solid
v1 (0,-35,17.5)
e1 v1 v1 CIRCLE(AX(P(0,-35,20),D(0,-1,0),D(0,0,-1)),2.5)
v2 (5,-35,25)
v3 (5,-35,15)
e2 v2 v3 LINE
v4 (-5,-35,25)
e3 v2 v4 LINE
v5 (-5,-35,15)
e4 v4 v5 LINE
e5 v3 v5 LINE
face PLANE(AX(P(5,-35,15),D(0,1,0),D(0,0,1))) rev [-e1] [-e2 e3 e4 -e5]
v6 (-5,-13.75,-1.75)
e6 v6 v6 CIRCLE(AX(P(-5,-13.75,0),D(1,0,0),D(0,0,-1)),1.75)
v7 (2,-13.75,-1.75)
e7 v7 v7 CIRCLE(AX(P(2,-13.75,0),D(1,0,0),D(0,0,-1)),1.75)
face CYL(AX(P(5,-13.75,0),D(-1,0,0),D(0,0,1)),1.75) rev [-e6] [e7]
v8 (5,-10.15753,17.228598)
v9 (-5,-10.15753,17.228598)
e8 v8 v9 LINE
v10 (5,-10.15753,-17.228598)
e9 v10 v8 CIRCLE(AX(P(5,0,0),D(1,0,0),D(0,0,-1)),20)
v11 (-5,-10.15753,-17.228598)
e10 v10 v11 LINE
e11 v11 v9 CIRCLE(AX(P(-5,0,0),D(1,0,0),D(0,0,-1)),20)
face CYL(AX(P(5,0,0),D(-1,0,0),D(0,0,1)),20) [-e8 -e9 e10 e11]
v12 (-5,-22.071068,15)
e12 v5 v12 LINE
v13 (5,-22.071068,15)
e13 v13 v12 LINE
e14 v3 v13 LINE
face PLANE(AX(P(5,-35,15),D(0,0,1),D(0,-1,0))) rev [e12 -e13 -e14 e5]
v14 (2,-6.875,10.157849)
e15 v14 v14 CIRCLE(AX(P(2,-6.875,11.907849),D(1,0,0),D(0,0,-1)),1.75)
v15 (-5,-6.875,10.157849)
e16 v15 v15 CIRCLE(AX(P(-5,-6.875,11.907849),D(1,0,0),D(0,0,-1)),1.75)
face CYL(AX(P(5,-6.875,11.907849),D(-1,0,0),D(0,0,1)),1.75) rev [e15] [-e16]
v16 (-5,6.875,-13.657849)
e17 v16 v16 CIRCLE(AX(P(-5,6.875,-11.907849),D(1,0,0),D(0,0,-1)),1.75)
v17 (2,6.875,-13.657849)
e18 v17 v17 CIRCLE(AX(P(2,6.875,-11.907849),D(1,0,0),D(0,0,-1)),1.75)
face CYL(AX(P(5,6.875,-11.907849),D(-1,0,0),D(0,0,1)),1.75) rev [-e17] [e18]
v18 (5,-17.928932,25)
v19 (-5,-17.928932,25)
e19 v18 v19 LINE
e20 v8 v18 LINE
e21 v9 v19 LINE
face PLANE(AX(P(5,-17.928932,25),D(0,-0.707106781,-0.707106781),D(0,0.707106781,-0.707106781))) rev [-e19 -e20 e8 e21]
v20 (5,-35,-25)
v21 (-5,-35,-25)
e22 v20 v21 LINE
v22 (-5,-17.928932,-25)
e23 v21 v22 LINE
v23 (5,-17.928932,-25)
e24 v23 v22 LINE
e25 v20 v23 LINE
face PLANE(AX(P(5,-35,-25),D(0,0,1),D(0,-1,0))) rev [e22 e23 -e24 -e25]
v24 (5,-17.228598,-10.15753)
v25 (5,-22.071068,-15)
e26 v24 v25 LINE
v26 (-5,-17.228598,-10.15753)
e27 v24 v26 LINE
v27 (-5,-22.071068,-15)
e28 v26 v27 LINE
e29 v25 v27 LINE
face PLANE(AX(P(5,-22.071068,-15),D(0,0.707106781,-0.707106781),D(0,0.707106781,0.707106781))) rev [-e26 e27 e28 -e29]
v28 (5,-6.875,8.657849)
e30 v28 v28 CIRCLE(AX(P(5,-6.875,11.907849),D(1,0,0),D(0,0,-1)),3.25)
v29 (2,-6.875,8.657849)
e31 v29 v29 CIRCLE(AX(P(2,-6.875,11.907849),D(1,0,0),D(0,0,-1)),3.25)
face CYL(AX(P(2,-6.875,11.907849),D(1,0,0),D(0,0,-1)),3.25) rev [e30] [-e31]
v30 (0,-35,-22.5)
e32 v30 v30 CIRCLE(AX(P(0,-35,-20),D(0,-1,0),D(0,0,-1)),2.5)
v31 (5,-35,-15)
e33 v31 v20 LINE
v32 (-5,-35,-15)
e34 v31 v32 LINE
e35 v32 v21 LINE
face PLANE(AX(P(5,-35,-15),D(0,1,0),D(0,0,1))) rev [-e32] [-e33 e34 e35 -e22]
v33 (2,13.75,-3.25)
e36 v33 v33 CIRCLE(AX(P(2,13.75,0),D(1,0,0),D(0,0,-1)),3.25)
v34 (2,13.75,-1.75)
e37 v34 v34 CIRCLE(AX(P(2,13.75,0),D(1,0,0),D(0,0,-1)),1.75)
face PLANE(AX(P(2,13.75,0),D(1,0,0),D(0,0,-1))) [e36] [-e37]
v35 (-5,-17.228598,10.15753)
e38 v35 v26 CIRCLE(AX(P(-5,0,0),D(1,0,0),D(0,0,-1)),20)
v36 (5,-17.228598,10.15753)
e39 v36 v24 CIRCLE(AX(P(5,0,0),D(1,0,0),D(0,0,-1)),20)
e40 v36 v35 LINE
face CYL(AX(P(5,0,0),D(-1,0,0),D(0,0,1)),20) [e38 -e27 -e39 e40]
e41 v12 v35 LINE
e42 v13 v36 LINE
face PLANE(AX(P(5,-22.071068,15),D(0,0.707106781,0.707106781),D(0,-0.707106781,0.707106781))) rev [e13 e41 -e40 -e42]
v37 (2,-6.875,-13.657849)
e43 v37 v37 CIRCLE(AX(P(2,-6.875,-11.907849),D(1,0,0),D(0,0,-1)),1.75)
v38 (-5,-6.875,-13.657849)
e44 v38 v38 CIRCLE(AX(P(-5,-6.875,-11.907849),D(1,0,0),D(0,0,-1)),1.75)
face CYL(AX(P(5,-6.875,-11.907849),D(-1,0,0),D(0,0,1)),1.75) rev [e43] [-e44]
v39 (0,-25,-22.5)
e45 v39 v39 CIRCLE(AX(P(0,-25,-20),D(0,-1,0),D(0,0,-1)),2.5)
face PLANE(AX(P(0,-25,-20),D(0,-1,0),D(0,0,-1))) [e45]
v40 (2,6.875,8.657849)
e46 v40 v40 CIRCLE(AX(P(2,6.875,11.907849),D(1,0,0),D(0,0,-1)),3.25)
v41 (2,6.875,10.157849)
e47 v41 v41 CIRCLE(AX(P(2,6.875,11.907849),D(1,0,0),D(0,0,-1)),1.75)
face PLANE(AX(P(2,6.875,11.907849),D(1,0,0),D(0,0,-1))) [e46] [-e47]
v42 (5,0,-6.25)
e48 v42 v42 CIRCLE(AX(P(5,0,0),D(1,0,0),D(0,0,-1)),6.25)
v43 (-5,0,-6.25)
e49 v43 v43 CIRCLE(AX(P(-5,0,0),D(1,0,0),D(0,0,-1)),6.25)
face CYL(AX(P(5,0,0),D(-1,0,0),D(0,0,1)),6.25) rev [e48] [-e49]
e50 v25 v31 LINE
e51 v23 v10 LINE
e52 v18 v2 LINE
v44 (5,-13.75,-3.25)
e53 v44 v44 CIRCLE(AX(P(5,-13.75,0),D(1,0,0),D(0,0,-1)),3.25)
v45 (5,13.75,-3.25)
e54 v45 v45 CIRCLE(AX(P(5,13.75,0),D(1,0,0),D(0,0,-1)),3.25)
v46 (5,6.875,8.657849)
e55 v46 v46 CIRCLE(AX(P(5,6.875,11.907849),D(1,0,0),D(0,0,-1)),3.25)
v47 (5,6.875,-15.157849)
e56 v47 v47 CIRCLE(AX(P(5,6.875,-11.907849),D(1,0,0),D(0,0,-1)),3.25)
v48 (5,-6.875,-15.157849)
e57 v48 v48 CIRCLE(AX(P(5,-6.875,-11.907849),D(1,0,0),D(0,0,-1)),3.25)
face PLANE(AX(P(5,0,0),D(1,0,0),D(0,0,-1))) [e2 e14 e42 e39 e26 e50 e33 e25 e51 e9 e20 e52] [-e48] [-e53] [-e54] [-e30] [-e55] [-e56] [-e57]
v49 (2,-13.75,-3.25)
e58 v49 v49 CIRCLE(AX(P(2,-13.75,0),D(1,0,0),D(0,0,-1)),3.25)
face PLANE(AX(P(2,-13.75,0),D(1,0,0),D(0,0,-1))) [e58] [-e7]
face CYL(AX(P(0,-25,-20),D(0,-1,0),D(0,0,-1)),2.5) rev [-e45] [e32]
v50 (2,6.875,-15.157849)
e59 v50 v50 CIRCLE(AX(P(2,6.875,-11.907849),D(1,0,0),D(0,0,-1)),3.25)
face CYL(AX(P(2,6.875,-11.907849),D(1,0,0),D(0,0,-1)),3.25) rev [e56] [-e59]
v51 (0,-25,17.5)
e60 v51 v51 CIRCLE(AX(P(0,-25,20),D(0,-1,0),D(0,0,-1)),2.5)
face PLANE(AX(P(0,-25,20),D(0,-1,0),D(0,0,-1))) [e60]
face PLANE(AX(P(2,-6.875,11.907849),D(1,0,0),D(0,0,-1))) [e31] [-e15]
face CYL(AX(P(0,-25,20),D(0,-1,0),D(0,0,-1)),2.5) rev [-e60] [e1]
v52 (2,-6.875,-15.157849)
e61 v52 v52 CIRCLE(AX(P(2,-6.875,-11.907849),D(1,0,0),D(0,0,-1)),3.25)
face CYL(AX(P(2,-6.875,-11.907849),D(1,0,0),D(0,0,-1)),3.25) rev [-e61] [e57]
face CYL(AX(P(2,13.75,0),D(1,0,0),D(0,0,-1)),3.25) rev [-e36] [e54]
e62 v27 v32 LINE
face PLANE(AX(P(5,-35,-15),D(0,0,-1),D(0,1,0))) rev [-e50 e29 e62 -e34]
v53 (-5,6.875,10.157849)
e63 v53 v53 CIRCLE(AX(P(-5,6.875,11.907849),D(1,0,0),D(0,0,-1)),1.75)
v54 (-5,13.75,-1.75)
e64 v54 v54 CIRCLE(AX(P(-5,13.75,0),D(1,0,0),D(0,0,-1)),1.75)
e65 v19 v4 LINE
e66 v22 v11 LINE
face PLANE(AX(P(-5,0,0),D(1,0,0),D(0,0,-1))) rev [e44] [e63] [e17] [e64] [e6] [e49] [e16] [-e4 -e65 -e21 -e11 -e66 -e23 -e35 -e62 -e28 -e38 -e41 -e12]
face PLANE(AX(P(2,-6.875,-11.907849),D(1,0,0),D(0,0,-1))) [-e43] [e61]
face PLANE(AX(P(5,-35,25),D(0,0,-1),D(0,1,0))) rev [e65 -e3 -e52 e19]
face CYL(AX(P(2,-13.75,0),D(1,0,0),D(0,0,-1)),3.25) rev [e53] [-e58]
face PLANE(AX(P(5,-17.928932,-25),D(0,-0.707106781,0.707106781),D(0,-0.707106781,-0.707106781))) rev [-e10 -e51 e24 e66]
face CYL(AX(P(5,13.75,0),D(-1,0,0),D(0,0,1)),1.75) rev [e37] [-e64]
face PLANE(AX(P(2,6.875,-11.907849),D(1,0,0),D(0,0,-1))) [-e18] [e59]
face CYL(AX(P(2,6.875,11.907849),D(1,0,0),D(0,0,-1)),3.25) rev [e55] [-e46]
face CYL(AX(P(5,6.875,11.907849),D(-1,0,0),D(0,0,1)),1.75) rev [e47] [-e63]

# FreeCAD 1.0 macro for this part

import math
import FreeCAD as App
import Part
import Sketcher
from FreeCAD import Vector

doc = App.newDocument("Part")
body = doc.addObject("PartDesign::Body", "Body")

sketch1 = doc.addObject("Sketcher::SketchObject", "Sketch")
body.addObject(sketch1)
sketch1.AttachmentSupport = (doc.YZ_Plane, [""])
sketch1.MapMode = "FlatFace"
sketch1.addGeometry(Part.Circle(Vector(0, 0, 0), Vector(0, 0, 1), 20), False)
sketch1.addGeometry(Part.Circle(Vector(-6.9, 11.9, 0), Vector(0, 0, 1), 1.8), False)
sketch1.addGeometry(Part.Circle(Vector(-13.8, 0, 0), Vector(0, 0, 1), 1.8), False)
sketch1.addGeometry(Part.Circle(Vector(-6.9, -11.9, 0), Vector(0, 0, 1), 1.8), False)
sketch1.addGeometry(Part.Circle(Vector(6.9, 11.9, 0), Vector(0, 0, 1), 1.8), False)
sketch1.addGeometry(Part.Circle(Vector(0, 0, 0), Vector(0, 0, 1), 6.2), False)
sketch1.addGeometry(Part.Circle(Vector(6.9, -11.9, 0), Vector(0, 0, 1), 1.8), False)
sketch1.addGeometry(Part.Circle(Vector(13.8, 0, 0), Vector(0, 0, 1), 1.8), False)
sketch1.addConstraint(Sketcher.Constraint("Coincident", 0, 3, -1, 1))
sketch1.addConstraint(Sketcher.Constraint("Coincident", 5, 3, -1, 1))
sketch1.addConstraint(Sketcher.Constraint("Equal", 1, 2))
sketch1.addConstraint(Sketcher.Constraint("Equal", 2, 3))
sketch1.addConstraint(Sketcher.Constraint("Equal", 3, 4))
sketch1.addConstraint(Sketcher.Constraint("Equal", 4, 6))
sketch1.addConstraint(Sketcher.Constraint("Equal", 6, 7))
sketch1.addConstraint(Sketcher.Constraint("Symmetric", 3, 3, 4, 3, -1, 1))
sketch1.addConstraint(Sketcher.Constraint("Symmetric", 1, 3, 6, 3, -1, 1))
sketch1.addConstraint(Sketcher.Constraint("Symmetric", 2, 3, 7, 3, -1, 1))
sketch1.addConstraint(Sketcher.Constraint("Symmetric", 1, 3, 4, 3, -2))
sketch1.addConstraint(Sketcher.Constraint("PointOnObject", 2, 3, -1))
sketch1.addConstraint(Sketcher.Constraint("Diameter", 0, 40.0))
sketch1.addConstraint(Sketcher.Constraint("Diameter", 1, 3.5))
sketch1.addConstraint(Sketcher.Constraint("Diameter", 5, 12.5))
sketch1.addConstraint(Sketcher.Constraint("DistanceX", 2, 3, -1, 1, 13.75))
sketch1.addConstraint(Sketcher.Constraint("DistanceX", 1, 3, 4, 3, 13.75))
sketch1.addConstraint(Sketcher.Constraint("DistanceY", 3, 3, 1, 3, 23.815699))
pad1 = doc.addObject("PartDesign::Pad", "Pad")
body.addObject(pad1)
pad1.Profile = sketch1
pad1.Length = 10
pad1.Midplane = True

sketch2 = doc.addObject("Sketcher::SketchObject", "Sketch001")
body.addObject(sketch2)
sketch2.AttachmentSupport = (doc.YZ_Plane, [""])
sketch2.MapMode = "FlatFace"
sketch2.addGeometry(Part.LineSegment(Vector(-35, 25, 0), Vector(-35, 15, 0)), False)
sketch2.addGeometry(Part.LineSegment(Vector(-35, 15, 0), Vector(-22, 15, 0)), False)
sketch2.addGeometry(Part.LineSegment(Vector(-22, 15, 0), Vector(-17, 10, 0)), False)
sketch2.addGeometry(Part.ArcOfCircle(Part.Circle(Vector(0, 0, 0), Vector(0, 0, 1), 20), math.radians(121), math.radians(149)), False)
sketch2.addGeometry(Part.LineSegment(Vector(-10, 17, 0), Vector(-18, 25, 0)), False)
sketch2.addGeometry(Part.LineSegment(Vector(-18, 25, 0), Vector(-35, 25, 0)), False)
sketch2.addGeometry(Part.LineSegment(Vector(-22, -15, 0), Vector(-35, -15, 0)), False)
sketch2.addGeometry(Part.LineSegment(Vector(-35, -15, 0), Vector(-35, -25, 0)), False)
sketch2.addGeometry(Part.LineSegment(Vector(-35, -25, 0), Vector(-18, -25, 0)), False)
sketch2.addGeometry(Part.LineSegment(Vector(-18, -25, 0), Vector(-10, -17, 0)), False)
sketch2.addGeometry(Part.ArcOfCircle(Part.Circle(Vector(0, 0, 0), Vector(0, 0, 1), 20), math.radians(-149), math.radians(-121)), False)
sketch2.addGeometry(Part.LineSegment(Vector(-17, -10, 0), Vector(-22, -15, 0)), False)
sketch2.addConstraint(Sketcher.Constraint("Coincident", 0, 2, 1, 1))
sketch2.addConstraint(Sketcher.Constraint("Coincident", 1, 2, 2, 1))
sketch2.addConstraint(Sketcher.Constraint("Coincident", 2, 2, 3, 2))
sketch2.addConstraint(Sketcher.Constraint("Coincident", 3, 1, 4, 1))
sketch2.addConstraint(Sketcher.Constraint("Coincident", 4, 2, 5, 1))
sketch2.addConstraint(Sketcher.Constraint("Coincident", 5, 2, 0, 1))
sketch2.addConstraint(Sketcher.Constraint("Coincident", 6, 2, 7, 1))
sketch2.addConstraint(Sketcher.Constraint("Coincident", 7, 2, 8, 1))
sketch2.addConstraint(Sketcher.Constraint("Coincident", 8, 2, 9, 1))
sketch2.addConstraint(Sketcher.Constraint("Coincident", 9, 2, 10, 2))
sketch2.addConstraint(Sketcher.Constraint("Coincident", 10, 1, 11, 1))
sketch2.addConstraint(Sketcher.Constraint("Coincident", 11, 2, 6, 1))
sketch2.addConstraint(Sketcher.Constraint("Vertical", 0))
sketch2.addConstraint(Sketcher.Constraint("Horizontal", 1))
sketch2.addConstraint(Sketcher.Constraint("Horizontal", 5))
sketch2.addConstraint(Sketcher.Constraint("Horizontal", 6))
sketch2.addConstraint(Sketcher.Constraint("Vertical", 7))
sketch2.addConstraint(Sketcher.Constraint("Horizontal", 8))
sketch2.addConstraint(Sketcher.Constraint("Coincident", 3, 3, -1, 1))
sketch2.addConstraint(Sketcher.Constraint("Coincident", 10, 3, -1, 1))
sketch2.addConstraint(Sketcher.Constraint("Equal", 3, 10))
sketch2.addConstraint(Sketcher.Constraint("Symmetric", 0, 2, 6, 2, -1))
sketch2.addConstraint(Sketcher.Constraint("Symmetric", 4, 2, 8, 2, -1))
sketch2.addConstraint(Sketcher.Constraint("Parallel", 2, 4))
sketch2.addConstraint(Sketcher.Constraint("Perpendicular", 4, 9))
sketch2.addConstraint(Sketcher.Constraint("Parallel", 9, 11))
sketch2.addConstraint(Sketcher.Constraint("Vertical", 3, 1, 9, 2))
sketch2.addConstraint(Sketcher.Constraint("Vertical", 2, 2, 10, 1))
sketch2.addConstraint(Sketcher.Constraint("Radius", 3, 20.0))
sketch2.addConstraint(Sketcher.Constraint("DistanceY", 0, 2, 0, 1, 10.0))
sketch2.addConstraint(Sketcher.Constraint("DistanceX", 0, 2, -1, 1, 35.0))
sketch2.addConstraint(Sketcher.Constraint("DistanceY", -1, 1, 0, 2, 15.0))
sketch2.addConstraint(Sketcher.Constraint("DistanceX", 1, 1, 1, 2, 12.928932))
sketch2.addConstraint(Sketcher.Constraint("DistanceX", 5, 2, 5, 1, 17.071068))
pad2 = doc.addObject("PartDesign::Pad", "Pad001")
body.addObject(pad2)
pad2.Profile = sketch2
pad2.Length = 10
pad2.Midplane = True

sketch3 = doc.addObject("Sketcher::SketchObject", "Sketch002")
body.addObject(sketch3)
sketch3.AttachmentSupport = (doc.YZ_Plane, [""])
sketch3.MapMode = "FlatFace"
sketch3.AttachmentOffset = App.Placement(Vector(0, 0, 5), App.Rotation())
sketch3.addGeometry(Part.Circle(Vector(13.8, 0, 0), Vector(0, 0, 1), 3.2), False)
sketch3.addGeometry(Part.Circle(Vector(6.9, -11.9, 0), Vector(0, 0, 1), 3.2), False)
sketch3.addGeometry(Part.Circle(Vector(-6.9, -11.9, 0), Vector(0, 0, 1), 3.2), False)
sketch3.addGeometry(Part.Circle(Vector(-13.8, 0, 0), Vector(0, 0, 1), 3.2), False)
sketch3.addGeometry(Part.Circle(Vector(-6.9, 11.9, 0), Vector(0, 0, 1), 3.2), False)
sketch3.addGeometry(Part.Circle(Vector(6.9, 11.9, 0), Vector(0, 0, 1), 3.2), False)
sketch3.addConstraint(Sketcher.Constraint("Equal", 0, 1))
sketch3.addConstraint(Sketcher.Constraint("Equal", 1, 2))
sketch3.addConstraint(Sketcher.Constraint("Equal", 2, 3))
sketch3.addConstraint(Sketcher.Constraint("Equal", 3, 4))
sketch3.addConstraint(Sketcher.Constraint("Equal", 4, 5))
sketch3.addConstraint(Sketcher.Constraint("Symmetric", 0, 3, 3, 3, -1, 1))
sketch3.addConstraint(Sketcher.Constraint("Symmetric", 1, 3, 4, 3, -1, 1))
sketch3.addConstraint(Sketcher.Constraint("Symmetric", 2, 3, 5, 3, -1, 1))
sketch3.addConstraint(Sketcher.Constraint("Symmetric", 1, 3, 2, 3, -2))
sketch3.addConstraint(Sketcher.Constraint("PointOnObject", 0, 3, -1))
sketch3.addConstraint(Sketcher.Constraint("Diameter", 0, 6.5))
sketch3.addConstraint(Sketcher.Constraint("DistanceX", 3, 3, 0, 3, 27.5))
sketch3.addConstraint(Sketcher.Constraint("DistanceX", 2, 3, 1, 3, 13.75))
sketch3.addConstraint(Sketcher.Constraint("DistanceY", 2, 3, 4, 3, 23.815699))
pocket1 = doc.addObject("PartDesign::Pocket", "Pocket")
body.addObject(pocket1)
pocket1.Profile = sketch3
pocket1.Length = 3

sketch4 = doc.addObject("Sketcher::SketchObject", "Sketch003")
body.addObject(sketch4)
sketch4.AttachmentSupport = (doc.XZ_Plane, [""])
sketch4.MapMode = "FlatFace"
sketch4.AttachmentOffset = App.Placement(Vector(0, 0, 35), App.Rotation())
sketch4.addGeometry(Part.Circle(Vector(0, 20, 0), Vector(0, 0, 1), 2.5), False)
sketch4.addGeometry(Part.Circle(Vector(0, -20, 0), Vector(0, 0, 1), 2.5), False)
sketch4.addConstraint(Sketcher.Constraint("Equal", 0, 1))
sketch4.addConstraint(Sketcher.Constraint("Symmetric", 0, 3, 1, 3, -1, 1))
sketch4.addConstraint(Sketcher.Constraint("PointOnObject", 0, 3, -2))
sketch4.addConstraint(Sketcher.Constraint("Diameter", 0, 5.0))
sketch4.addConstraint(Sketcher.Constraint("DistanceY", -1, 1, 0, 3, 20.0))
pocket2 = doc.addObject("PartDesign::Pocket", "Pocket001")
body.addObject(pocket2)
pocket2.Profile = sketch4
pocket2.Length = 10

doc.recompute()
